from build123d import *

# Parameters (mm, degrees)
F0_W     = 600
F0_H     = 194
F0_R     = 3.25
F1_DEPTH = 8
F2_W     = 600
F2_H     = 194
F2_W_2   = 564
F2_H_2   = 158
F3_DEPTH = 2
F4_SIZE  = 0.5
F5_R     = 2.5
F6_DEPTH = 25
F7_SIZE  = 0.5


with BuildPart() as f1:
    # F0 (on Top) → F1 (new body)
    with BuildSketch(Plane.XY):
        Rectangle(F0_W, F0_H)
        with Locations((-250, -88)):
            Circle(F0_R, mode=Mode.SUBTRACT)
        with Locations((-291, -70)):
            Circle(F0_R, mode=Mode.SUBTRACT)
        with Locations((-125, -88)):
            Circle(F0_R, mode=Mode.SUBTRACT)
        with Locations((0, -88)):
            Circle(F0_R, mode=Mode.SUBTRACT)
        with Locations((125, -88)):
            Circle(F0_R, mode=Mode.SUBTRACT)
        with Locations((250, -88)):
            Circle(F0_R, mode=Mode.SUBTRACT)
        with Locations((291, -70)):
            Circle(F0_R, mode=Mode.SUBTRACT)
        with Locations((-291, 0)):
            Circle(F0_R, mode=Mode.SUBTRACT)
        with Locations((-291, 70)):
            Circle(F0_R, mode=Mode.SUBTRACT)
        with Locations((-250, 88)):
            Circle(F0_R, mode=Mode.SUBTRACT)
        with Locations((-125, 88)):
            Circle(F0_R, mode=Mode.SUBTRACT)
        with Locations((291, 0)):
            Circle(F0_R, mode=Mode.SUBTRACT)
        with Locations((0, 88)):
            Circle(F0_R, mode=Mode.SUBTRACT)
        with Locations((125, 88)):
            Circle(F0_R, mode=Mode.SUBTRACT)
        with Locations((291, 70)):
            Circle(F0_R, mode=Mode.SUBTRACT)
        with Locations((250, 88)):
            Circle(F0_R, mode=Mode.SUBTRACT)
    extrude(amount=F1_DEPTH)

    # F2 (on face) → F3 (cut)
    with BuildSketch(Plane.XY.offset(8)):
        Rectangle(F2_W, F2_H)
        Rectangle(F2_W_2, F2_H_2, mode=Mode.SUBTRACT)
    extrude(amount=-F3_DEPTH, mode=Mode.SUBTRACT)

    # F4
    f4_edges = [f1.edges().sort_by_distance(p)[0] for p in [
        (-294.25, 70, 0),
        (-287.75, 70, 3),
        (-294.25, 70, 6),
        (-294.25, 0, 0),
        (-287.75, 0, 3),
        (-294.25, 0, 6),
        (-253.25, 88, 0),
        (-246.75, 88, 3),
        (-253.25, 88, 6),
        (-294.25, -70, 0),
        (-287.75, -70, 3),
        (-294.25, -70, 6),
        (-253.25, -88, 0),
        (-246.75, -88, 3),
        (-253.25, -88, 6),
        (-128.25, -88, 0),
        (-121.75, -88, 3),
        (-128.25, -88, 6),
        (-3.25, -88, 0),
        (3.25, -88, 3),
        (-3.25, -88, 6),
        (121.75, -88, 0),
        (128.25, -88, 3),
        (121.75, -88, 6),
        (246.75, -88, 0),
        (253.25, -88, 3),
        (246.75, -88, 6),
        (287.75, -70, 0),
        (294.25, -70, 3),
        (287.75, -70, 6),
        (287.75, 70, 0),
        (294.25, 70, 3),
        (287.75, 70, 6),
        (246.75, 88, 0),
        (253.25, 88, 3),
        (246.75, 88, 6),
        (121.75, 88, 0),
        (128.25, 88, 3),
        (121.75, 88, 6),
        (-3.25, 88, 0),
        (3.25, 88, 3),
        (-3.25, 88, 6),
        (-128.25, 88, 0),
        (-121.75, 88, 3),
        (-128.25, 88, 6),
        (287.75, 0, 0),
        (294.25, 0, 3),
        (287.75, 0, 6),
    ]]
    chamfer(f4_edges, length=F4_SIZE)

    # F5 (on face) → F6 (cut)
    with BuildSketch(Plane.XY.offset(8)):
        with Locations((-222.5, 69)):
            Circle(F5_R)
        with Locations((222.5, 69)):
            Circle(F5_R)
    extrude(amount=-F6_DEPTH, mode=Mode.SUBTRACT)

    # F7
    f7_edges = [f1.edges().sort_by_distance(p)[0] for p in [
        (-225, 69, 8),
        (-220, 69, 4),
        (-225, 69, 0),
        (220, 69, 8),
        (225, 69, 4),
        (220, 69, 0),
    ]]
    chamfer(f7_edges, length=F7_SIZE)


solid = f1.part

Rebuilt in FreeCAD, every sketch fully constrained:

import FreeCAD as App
import Part
import Sketcher

V = App.Vector


def edges_at(feature, points):
    """Names of the edges that pass closest to the given points."""
    edges = feature.Shape.Edges
    near = lambda p: min(range(len(edges)), key=lambda i: edges[i].distToShape(Part.Vertex(*p))[0])
    return sorted({f"Edge{near(p) + 1}" for p in points})


def add_polygon(sketch, points):
    """Adds a closed chain of lines whose ends are joined by coincident constraints."""
    first, n = sketch.GeometryCount, len(points)
    for a, b in zip(points, points[1:] + points[:1]):
        sketch.addGeometry(Part.LineSegment(App.Vector(*a, 0), App.Vector(*b, 0)), False)
    for i in range(n):
        sketch.addConstraint(Sketcher.Constraint("Coincident", first + i, 2, first + (i + 1) % n, 1))

doc = App.newDocument("Part")
params = doc.addObject("Spreadsheet::Sheet", "Params")
for row, (alias, value) in enumerate([
    ("sketch1_diameter", "6.5 mm"),
    ("sketch1_width", "600 mm"),
    ("sketch1_height", "194 mm"),
    ("pad1_length", "8 mm"),
    ("sketch2_width", "600 mm"),
    ("sketch2_width2", "564 mm"),
    ("sketch2_height", "194 mm"),
    ("sketch2_height2", "158 mm"),
    ("pocket1_length", "2 mm"),
    ("chamfer_size", "0.5 mm"),
    ("sketch3_diameter", "5 mm"),
    ("pocket2_length", "25 mm"),
    ("chamfer2_size", "0.5 mm"),
], start=1):
    params.set(f"A{row}", alias)
    params.set(f"B{row}", "=" + value)
    params.setAlias(f"B{row}", alias)

body = doc.addObject("PartDesign::Body", "Body")

sketch1 = body.newObject("Sketcher::SketchObject", "Sketch")
sketch1.AttachmentSupport = (doc.getObject("XY_Plane"), [""])
sketch1.MapMode = "FlatFace"
add_polygon(sketch1, [(-300, 97), (-300, -97), (300, -97), (300, 97)])
sketch1.addGeometry(Part.Circle(V(-250, -88, 0), V(0, 0, 1), 3.2), False)
sketch1.addGeometry(Part.Circle(V(-291, -70, 0), V(0, 0, 1), 3.2), False)
sketch1.addGeometry(Part.Circle(V(-125, -88, 0), V(0, 0, 1), 3.2), False)
sketch1.addGeometry(Part.Circle(V(0, -88, 0), V(0, 0, 1), 3.2), False)
sketch1.addGeometry(Part.Circle(V(125, -88, 0), V(0, 0, 1), 3.2), False)
sketch1.addGeometry(Part.Circle(V(250, -88, 0), V(0, 0, 1), 3.2), False)
sketch1.addGeometry(Part.Circle(V(291, -70, 0), V(0, 0, 1), 3.2), False)
sketch1.addGeometry(Part.Circle(V(-291, 0, 0), V(0, 0, 1), 3.2), False)
sketch1.addGeometry(Part.Circle(V(-291, 70, 0), V(0, 0, 1), 3.2), False)
sketch1.addGeometry(Part.Circle(V(-250, 88, 0), V(0, 0, 1), 3.2), False)
sketch1.addGeometry(Part.Circle(V(-125, 88, 0), V(0, 0, 1), 3.2), False)
sketch1.addGeometry(Part.Circle(V(291, 0, 0), V(0, 0, 1), 3.2), False)
sketch1.addGeometry(Part.Circle(V(0, 88, 0), V(0, 0, 1), 3.2), False)
sketch1.addGeometry(Part.Circle(V(125, 88, 0), V(0, 0, 1), 3.2), False)
sketch1.addGeometry(Part.Circle(V(291, 70, 0), V(0, 0, 1), 3.2), False)
sketch1.addGeometry(Part.Circle(V(250, 88, 0), V(0, 0, 1), 3.2), False)
sketch1.addConstraint([
    Sketcher.Constraint("Vertical", 0),
    Sketcher.Constraint("Horizontal", 1),
    Sketcher.Constraint("Vertical", 2),
    Sketcher.Constraint("Horizontal", 3),
    Sketcher.Constraint("Equal", 4, 5),
    Sketcher.Constraint("Equal", 5, 6),
    Sketcher.Constraint("Equal", 6, 7),
    Sketcher.Constraint("Equal", 7, 8),
    Sketcher.Constraint("Equal", 8, 9),
    Sketcher.Constraint("Equal", 9, 10),
    Sketcher.Constraint("Equal", 10, 11),
    Sketcher.Constraint("Equal", 11, 12),
    Sketcher.Constraint("Equal", 12, 13),
    Sketcher.Constraint("Equal", 13, 14),
    Sketcher.Constraint("Equal", 14, 15),
    Sketcher.Constraint("Equal", 15, 16),
    Sketcher.Constraint("Equal", 16, 17),
    Sketcher.Constraint("Equal", 17, 18),
    Sketcher.Constraint("Equal", 18, 19),
    Sketcher.Constraint("Symmetric", 10, 3, 12, 3, -1, 1),
    Sketcher.Constraint("Symmetric", 9, 3, 13, 3, -1, 1),
    Sketcher.Constraint("Symmetric", 8, 3, 14, 3, -1, 1),
    Sketcher.Constraint("Symmetric", 11, 3, 15, 3, -1, 1),
    Sketcher.Constraint("Symmetric", 7, 3, 16, 3, -1, 1),
    Sketcher.Constraint("Symmetric", 6, 3, 17, 3, -1, 1),
    Sketcher.Constraint("Symmetric", 5, 3, 18, 3, -1, 1),
    Sketcher.Constraint("Symmetric", 4, 3, 19, 3, -1, 1),
    Sketcher.Constraint("Symmetric", 0, 2, 2, 2, -1, 1),
    Sketcher.Constraint("Symmetric", 6, 3, 8, 3, -2),
    Sketcher.Constraint("Symmetric", 4, 3, 9, 3, -2),
    Sketcher.Constraint("Symmetric", 5, 3, 10, 3, -2),
    Sketcher.Constraint("PointOnObject", 7, 3, -2),
    Sketcher.Constraint("PointOnObject", 11, 3, -1),
    Sketcher.Constraint("Horizontal", 4, 3, 6, 3),
    Sketcher.Constraint("Horizontal", 6, 3, 7, 3),
    Sketcher.Constraint("Vertical", 5, 3, 11, 3),
    Sketcher.Constraint("Diameter", 4, 6.5),
    Sketcher.Constraint("DistanceX", 1, 1, 1, 2, 600.0),
    Sketcher.Constraint("DistanceY", 0, 2, 0, 1, 194.0),
    Sketcher.Constraint("DistanceX", 4, 3, -1, 1, 250.0),
    Sketcher.Constraint("DistanceY", 4, 3, -1, 1, 88.0),
    Sketcher.Constraint("DistanceX", 5, 3, -1, 1, 291.0),
    Sketcher.Constraint("DistanceY", 5, 3, -1, 1, 70.0),
    Sketcher.Constraint("DistanceX", 6, 3, -1, 1, 125.0),
])
sketch1.setExpression("Constraints[40]", "Params.sketch1_diameter")
sketch1.setExpression("Constraints[41]", "Params.sketch1_width")
sketch1.setExpression("Constraints[42]", "Params.sketch1_height")
pad1 = body.newObject("PartDesign::Pad", "Pad")
pad1.Profile = sketch1
pad1.setExpression("Length", "Params.pad1_length")

sketch2 = body.newObject("Sketcher::SketchObject", "Sketch001")
sketch2.AttachmentSupport = (doc.getObject("XY_Plane"), [""])
sketch2.MapMode = "FlatFace"
sketch2.AttachmentOffset = App.Placement(V(0, 0, 8), App.Rotation())
add_polygon(sketch2, [(-300, 97), (-300, -97), (300, -97), (300, 97)])
add_polygon(sketch2, [(282, -79), (-282, -79), (-282, 79), (282, 79)])
sketch2.addConstraint([
    Sketcher.Constraint("Vertical", 0),
    Sketcher.Constraint("Horizontal", 1),
    Sketcher.Constraint("Vertical", 2),
    Sketcher.Constraint("Horizontal", 3),
    Sketcher.Constraint("Horizontal", 4),
    Sketcher.Constraint("Vertical", 5),
    Sketcher.Constraint("Horizontal", 6),
    Sketcher.Constraint("Vertical", 7),
    Sketcher.Constraint("Symmetric", 0, 2, 2, 2, -1, 1),
    Sketcher.Constraint("Symmetric", 4, 2, 6, 2, -1, 1),
    Sketcher.Constraint("DistanceX", 1, 1, 1, 2, 600.0),
    Sketcher.Constraint("DistanceX", 4, 2, 4, 1, 564.0),
    Sketcher.Constraint("DistanceY", 0, 2, 0, 1, 194.0),
    Sketcher.Constraint("DistanceY", 5, 1, 5, 2, 158.0),
])
sketch2.setExpression("Constraints[18]", "Params.sketch2_width")
sketch2.setExpression("Constraints[19]", "Params.sketch2_width2")
sketch2.setExpression("Constraints[20]", "Params.sketch2_height")
sketch2.setExpression("Constraints[21]", "Params.sketch2_height2")
pocket1 = body.newObject("PartDesign::Pocket", "Pocket")
pocket1.Profile = sketch2
pocket1.setExpression("Length", "Params.pocket1_length")
doc.recompute()

chamfer = body.newObject("PartDesign::Chamfer", "Chamfer")
chamfer.Base = (pocket1, edges_at(pocket1, [
    (-294.25, 70, 0),
    (-287.75, 70, 3),
    (-294.25, 70, 6),
    (-294.25, 0, 0),
    (-287.75, 0, 3),
    (-294.25, 0, 6),
    (-253.25, 88, 0),
    (-246.75, 88, 3),
    (-253.25, 88, 6),
    (-294.25, -70, 0),
    (-287.75, -70, 3),
    (-294.25, -70, 6),
    (-253.25, -88, 0),
    (-246.75, -88, 3),
    (-253.25, -88, 6),
    (-128.25, -88, 0),
    (-121.75, -88, 3),
    (-128.25, -88, 6),
    (-3.25, -88, 0),
    (3.25, -88, 3),
    (-3.25, -88, 6),
    (121.75, -88, 0),
    (128.25, -88, 3),
    (121.75, -88, 6),
    (246.75, -88, 0),
    (253.25, -88, 3),
    (246.75, -88, 6),
    (287.75, -70, 0),
    (294.25, -70, 3),
    (287.75, -70, 6),
    (287.75, 70, 0),
    (294.25, 70, 3),
    (287.75, 70, 6),
    (246.75, 88, 0),
    (253.25, 88, 3),
    (246.75, 88, 6),
    (121.75, 88, 0),
    (128.25, 88, 3),
    (121.75, 88, 6),
    (-3.25, 88, 0),
    (3.25, 88, 3),
    (-3.25, 88, 6),
    (-128.25, 88, 0),
    (-121.75, 88, 3),
    (-128.25, 88, 6),
    (287.75, 0, 0),
    (294.25, 0, 3),
    (287.75, 0, 6),
]))
chamfer.setExpression("Size", "Params.chamfer_size")

sketch3 = body.newObject("Sketcher::SketchObject", "Sketch002")
sketch3.AttachmentSupport = (doc.getObject("XY_Plane"), [""])
sketch3.MapMode = "FlatFace"
sketch3.AttachmentOffset = App.Placement(V(0, 0, 8), App.Rotation())
sketch3.addGeometry([
    Part.Circle(V(-222.5, 69, 0), V(0, 0, 1), 2.5),
    Part.Circle(V(222.5, 69, 0), V(0, 0, 1), 2.5),
], False)
sketch3.addConstraint([
    Sketcher.Constraint("Equal", 0, 1),
    Sketcher.Constraint("Symmetric", 0, 3, 1, 3, -2),
    Sketcher.Constraint("Diameter", 0, 5.0),
    Sketcher.Constraint("DistanceY", -1, 1, 0, 3, 69.0),
    Sketcher.Constraint("DistanceX", 0, 3, 1, 3, 445.0),
])
sketch3.setExpression("Constraints[2]", "Params.sketch3_diameter")
pocket2 = body.newObject("PartDesign::Pocket", "Pocket001")
pocket2.Profile = sketch3
pocket2.setExpression("Length", "Params.pocket2_length")
doc.recompute()

chamfer2 = body.newObject("PartDesign::Chamfer", "Chamfer001")
chamfer2.Base = (pocket2, edges_at(pocket2, [
    (-225, 69, 8),
    (-220, 69, 4),
    (-225, 69, 0),
    (220, 69, 8),
    (225, 69, 4),
    (220, 69, 0),
]))
chamfer2.setExpression("Size", "Params.chamfer2_size")

doc.recompute()
